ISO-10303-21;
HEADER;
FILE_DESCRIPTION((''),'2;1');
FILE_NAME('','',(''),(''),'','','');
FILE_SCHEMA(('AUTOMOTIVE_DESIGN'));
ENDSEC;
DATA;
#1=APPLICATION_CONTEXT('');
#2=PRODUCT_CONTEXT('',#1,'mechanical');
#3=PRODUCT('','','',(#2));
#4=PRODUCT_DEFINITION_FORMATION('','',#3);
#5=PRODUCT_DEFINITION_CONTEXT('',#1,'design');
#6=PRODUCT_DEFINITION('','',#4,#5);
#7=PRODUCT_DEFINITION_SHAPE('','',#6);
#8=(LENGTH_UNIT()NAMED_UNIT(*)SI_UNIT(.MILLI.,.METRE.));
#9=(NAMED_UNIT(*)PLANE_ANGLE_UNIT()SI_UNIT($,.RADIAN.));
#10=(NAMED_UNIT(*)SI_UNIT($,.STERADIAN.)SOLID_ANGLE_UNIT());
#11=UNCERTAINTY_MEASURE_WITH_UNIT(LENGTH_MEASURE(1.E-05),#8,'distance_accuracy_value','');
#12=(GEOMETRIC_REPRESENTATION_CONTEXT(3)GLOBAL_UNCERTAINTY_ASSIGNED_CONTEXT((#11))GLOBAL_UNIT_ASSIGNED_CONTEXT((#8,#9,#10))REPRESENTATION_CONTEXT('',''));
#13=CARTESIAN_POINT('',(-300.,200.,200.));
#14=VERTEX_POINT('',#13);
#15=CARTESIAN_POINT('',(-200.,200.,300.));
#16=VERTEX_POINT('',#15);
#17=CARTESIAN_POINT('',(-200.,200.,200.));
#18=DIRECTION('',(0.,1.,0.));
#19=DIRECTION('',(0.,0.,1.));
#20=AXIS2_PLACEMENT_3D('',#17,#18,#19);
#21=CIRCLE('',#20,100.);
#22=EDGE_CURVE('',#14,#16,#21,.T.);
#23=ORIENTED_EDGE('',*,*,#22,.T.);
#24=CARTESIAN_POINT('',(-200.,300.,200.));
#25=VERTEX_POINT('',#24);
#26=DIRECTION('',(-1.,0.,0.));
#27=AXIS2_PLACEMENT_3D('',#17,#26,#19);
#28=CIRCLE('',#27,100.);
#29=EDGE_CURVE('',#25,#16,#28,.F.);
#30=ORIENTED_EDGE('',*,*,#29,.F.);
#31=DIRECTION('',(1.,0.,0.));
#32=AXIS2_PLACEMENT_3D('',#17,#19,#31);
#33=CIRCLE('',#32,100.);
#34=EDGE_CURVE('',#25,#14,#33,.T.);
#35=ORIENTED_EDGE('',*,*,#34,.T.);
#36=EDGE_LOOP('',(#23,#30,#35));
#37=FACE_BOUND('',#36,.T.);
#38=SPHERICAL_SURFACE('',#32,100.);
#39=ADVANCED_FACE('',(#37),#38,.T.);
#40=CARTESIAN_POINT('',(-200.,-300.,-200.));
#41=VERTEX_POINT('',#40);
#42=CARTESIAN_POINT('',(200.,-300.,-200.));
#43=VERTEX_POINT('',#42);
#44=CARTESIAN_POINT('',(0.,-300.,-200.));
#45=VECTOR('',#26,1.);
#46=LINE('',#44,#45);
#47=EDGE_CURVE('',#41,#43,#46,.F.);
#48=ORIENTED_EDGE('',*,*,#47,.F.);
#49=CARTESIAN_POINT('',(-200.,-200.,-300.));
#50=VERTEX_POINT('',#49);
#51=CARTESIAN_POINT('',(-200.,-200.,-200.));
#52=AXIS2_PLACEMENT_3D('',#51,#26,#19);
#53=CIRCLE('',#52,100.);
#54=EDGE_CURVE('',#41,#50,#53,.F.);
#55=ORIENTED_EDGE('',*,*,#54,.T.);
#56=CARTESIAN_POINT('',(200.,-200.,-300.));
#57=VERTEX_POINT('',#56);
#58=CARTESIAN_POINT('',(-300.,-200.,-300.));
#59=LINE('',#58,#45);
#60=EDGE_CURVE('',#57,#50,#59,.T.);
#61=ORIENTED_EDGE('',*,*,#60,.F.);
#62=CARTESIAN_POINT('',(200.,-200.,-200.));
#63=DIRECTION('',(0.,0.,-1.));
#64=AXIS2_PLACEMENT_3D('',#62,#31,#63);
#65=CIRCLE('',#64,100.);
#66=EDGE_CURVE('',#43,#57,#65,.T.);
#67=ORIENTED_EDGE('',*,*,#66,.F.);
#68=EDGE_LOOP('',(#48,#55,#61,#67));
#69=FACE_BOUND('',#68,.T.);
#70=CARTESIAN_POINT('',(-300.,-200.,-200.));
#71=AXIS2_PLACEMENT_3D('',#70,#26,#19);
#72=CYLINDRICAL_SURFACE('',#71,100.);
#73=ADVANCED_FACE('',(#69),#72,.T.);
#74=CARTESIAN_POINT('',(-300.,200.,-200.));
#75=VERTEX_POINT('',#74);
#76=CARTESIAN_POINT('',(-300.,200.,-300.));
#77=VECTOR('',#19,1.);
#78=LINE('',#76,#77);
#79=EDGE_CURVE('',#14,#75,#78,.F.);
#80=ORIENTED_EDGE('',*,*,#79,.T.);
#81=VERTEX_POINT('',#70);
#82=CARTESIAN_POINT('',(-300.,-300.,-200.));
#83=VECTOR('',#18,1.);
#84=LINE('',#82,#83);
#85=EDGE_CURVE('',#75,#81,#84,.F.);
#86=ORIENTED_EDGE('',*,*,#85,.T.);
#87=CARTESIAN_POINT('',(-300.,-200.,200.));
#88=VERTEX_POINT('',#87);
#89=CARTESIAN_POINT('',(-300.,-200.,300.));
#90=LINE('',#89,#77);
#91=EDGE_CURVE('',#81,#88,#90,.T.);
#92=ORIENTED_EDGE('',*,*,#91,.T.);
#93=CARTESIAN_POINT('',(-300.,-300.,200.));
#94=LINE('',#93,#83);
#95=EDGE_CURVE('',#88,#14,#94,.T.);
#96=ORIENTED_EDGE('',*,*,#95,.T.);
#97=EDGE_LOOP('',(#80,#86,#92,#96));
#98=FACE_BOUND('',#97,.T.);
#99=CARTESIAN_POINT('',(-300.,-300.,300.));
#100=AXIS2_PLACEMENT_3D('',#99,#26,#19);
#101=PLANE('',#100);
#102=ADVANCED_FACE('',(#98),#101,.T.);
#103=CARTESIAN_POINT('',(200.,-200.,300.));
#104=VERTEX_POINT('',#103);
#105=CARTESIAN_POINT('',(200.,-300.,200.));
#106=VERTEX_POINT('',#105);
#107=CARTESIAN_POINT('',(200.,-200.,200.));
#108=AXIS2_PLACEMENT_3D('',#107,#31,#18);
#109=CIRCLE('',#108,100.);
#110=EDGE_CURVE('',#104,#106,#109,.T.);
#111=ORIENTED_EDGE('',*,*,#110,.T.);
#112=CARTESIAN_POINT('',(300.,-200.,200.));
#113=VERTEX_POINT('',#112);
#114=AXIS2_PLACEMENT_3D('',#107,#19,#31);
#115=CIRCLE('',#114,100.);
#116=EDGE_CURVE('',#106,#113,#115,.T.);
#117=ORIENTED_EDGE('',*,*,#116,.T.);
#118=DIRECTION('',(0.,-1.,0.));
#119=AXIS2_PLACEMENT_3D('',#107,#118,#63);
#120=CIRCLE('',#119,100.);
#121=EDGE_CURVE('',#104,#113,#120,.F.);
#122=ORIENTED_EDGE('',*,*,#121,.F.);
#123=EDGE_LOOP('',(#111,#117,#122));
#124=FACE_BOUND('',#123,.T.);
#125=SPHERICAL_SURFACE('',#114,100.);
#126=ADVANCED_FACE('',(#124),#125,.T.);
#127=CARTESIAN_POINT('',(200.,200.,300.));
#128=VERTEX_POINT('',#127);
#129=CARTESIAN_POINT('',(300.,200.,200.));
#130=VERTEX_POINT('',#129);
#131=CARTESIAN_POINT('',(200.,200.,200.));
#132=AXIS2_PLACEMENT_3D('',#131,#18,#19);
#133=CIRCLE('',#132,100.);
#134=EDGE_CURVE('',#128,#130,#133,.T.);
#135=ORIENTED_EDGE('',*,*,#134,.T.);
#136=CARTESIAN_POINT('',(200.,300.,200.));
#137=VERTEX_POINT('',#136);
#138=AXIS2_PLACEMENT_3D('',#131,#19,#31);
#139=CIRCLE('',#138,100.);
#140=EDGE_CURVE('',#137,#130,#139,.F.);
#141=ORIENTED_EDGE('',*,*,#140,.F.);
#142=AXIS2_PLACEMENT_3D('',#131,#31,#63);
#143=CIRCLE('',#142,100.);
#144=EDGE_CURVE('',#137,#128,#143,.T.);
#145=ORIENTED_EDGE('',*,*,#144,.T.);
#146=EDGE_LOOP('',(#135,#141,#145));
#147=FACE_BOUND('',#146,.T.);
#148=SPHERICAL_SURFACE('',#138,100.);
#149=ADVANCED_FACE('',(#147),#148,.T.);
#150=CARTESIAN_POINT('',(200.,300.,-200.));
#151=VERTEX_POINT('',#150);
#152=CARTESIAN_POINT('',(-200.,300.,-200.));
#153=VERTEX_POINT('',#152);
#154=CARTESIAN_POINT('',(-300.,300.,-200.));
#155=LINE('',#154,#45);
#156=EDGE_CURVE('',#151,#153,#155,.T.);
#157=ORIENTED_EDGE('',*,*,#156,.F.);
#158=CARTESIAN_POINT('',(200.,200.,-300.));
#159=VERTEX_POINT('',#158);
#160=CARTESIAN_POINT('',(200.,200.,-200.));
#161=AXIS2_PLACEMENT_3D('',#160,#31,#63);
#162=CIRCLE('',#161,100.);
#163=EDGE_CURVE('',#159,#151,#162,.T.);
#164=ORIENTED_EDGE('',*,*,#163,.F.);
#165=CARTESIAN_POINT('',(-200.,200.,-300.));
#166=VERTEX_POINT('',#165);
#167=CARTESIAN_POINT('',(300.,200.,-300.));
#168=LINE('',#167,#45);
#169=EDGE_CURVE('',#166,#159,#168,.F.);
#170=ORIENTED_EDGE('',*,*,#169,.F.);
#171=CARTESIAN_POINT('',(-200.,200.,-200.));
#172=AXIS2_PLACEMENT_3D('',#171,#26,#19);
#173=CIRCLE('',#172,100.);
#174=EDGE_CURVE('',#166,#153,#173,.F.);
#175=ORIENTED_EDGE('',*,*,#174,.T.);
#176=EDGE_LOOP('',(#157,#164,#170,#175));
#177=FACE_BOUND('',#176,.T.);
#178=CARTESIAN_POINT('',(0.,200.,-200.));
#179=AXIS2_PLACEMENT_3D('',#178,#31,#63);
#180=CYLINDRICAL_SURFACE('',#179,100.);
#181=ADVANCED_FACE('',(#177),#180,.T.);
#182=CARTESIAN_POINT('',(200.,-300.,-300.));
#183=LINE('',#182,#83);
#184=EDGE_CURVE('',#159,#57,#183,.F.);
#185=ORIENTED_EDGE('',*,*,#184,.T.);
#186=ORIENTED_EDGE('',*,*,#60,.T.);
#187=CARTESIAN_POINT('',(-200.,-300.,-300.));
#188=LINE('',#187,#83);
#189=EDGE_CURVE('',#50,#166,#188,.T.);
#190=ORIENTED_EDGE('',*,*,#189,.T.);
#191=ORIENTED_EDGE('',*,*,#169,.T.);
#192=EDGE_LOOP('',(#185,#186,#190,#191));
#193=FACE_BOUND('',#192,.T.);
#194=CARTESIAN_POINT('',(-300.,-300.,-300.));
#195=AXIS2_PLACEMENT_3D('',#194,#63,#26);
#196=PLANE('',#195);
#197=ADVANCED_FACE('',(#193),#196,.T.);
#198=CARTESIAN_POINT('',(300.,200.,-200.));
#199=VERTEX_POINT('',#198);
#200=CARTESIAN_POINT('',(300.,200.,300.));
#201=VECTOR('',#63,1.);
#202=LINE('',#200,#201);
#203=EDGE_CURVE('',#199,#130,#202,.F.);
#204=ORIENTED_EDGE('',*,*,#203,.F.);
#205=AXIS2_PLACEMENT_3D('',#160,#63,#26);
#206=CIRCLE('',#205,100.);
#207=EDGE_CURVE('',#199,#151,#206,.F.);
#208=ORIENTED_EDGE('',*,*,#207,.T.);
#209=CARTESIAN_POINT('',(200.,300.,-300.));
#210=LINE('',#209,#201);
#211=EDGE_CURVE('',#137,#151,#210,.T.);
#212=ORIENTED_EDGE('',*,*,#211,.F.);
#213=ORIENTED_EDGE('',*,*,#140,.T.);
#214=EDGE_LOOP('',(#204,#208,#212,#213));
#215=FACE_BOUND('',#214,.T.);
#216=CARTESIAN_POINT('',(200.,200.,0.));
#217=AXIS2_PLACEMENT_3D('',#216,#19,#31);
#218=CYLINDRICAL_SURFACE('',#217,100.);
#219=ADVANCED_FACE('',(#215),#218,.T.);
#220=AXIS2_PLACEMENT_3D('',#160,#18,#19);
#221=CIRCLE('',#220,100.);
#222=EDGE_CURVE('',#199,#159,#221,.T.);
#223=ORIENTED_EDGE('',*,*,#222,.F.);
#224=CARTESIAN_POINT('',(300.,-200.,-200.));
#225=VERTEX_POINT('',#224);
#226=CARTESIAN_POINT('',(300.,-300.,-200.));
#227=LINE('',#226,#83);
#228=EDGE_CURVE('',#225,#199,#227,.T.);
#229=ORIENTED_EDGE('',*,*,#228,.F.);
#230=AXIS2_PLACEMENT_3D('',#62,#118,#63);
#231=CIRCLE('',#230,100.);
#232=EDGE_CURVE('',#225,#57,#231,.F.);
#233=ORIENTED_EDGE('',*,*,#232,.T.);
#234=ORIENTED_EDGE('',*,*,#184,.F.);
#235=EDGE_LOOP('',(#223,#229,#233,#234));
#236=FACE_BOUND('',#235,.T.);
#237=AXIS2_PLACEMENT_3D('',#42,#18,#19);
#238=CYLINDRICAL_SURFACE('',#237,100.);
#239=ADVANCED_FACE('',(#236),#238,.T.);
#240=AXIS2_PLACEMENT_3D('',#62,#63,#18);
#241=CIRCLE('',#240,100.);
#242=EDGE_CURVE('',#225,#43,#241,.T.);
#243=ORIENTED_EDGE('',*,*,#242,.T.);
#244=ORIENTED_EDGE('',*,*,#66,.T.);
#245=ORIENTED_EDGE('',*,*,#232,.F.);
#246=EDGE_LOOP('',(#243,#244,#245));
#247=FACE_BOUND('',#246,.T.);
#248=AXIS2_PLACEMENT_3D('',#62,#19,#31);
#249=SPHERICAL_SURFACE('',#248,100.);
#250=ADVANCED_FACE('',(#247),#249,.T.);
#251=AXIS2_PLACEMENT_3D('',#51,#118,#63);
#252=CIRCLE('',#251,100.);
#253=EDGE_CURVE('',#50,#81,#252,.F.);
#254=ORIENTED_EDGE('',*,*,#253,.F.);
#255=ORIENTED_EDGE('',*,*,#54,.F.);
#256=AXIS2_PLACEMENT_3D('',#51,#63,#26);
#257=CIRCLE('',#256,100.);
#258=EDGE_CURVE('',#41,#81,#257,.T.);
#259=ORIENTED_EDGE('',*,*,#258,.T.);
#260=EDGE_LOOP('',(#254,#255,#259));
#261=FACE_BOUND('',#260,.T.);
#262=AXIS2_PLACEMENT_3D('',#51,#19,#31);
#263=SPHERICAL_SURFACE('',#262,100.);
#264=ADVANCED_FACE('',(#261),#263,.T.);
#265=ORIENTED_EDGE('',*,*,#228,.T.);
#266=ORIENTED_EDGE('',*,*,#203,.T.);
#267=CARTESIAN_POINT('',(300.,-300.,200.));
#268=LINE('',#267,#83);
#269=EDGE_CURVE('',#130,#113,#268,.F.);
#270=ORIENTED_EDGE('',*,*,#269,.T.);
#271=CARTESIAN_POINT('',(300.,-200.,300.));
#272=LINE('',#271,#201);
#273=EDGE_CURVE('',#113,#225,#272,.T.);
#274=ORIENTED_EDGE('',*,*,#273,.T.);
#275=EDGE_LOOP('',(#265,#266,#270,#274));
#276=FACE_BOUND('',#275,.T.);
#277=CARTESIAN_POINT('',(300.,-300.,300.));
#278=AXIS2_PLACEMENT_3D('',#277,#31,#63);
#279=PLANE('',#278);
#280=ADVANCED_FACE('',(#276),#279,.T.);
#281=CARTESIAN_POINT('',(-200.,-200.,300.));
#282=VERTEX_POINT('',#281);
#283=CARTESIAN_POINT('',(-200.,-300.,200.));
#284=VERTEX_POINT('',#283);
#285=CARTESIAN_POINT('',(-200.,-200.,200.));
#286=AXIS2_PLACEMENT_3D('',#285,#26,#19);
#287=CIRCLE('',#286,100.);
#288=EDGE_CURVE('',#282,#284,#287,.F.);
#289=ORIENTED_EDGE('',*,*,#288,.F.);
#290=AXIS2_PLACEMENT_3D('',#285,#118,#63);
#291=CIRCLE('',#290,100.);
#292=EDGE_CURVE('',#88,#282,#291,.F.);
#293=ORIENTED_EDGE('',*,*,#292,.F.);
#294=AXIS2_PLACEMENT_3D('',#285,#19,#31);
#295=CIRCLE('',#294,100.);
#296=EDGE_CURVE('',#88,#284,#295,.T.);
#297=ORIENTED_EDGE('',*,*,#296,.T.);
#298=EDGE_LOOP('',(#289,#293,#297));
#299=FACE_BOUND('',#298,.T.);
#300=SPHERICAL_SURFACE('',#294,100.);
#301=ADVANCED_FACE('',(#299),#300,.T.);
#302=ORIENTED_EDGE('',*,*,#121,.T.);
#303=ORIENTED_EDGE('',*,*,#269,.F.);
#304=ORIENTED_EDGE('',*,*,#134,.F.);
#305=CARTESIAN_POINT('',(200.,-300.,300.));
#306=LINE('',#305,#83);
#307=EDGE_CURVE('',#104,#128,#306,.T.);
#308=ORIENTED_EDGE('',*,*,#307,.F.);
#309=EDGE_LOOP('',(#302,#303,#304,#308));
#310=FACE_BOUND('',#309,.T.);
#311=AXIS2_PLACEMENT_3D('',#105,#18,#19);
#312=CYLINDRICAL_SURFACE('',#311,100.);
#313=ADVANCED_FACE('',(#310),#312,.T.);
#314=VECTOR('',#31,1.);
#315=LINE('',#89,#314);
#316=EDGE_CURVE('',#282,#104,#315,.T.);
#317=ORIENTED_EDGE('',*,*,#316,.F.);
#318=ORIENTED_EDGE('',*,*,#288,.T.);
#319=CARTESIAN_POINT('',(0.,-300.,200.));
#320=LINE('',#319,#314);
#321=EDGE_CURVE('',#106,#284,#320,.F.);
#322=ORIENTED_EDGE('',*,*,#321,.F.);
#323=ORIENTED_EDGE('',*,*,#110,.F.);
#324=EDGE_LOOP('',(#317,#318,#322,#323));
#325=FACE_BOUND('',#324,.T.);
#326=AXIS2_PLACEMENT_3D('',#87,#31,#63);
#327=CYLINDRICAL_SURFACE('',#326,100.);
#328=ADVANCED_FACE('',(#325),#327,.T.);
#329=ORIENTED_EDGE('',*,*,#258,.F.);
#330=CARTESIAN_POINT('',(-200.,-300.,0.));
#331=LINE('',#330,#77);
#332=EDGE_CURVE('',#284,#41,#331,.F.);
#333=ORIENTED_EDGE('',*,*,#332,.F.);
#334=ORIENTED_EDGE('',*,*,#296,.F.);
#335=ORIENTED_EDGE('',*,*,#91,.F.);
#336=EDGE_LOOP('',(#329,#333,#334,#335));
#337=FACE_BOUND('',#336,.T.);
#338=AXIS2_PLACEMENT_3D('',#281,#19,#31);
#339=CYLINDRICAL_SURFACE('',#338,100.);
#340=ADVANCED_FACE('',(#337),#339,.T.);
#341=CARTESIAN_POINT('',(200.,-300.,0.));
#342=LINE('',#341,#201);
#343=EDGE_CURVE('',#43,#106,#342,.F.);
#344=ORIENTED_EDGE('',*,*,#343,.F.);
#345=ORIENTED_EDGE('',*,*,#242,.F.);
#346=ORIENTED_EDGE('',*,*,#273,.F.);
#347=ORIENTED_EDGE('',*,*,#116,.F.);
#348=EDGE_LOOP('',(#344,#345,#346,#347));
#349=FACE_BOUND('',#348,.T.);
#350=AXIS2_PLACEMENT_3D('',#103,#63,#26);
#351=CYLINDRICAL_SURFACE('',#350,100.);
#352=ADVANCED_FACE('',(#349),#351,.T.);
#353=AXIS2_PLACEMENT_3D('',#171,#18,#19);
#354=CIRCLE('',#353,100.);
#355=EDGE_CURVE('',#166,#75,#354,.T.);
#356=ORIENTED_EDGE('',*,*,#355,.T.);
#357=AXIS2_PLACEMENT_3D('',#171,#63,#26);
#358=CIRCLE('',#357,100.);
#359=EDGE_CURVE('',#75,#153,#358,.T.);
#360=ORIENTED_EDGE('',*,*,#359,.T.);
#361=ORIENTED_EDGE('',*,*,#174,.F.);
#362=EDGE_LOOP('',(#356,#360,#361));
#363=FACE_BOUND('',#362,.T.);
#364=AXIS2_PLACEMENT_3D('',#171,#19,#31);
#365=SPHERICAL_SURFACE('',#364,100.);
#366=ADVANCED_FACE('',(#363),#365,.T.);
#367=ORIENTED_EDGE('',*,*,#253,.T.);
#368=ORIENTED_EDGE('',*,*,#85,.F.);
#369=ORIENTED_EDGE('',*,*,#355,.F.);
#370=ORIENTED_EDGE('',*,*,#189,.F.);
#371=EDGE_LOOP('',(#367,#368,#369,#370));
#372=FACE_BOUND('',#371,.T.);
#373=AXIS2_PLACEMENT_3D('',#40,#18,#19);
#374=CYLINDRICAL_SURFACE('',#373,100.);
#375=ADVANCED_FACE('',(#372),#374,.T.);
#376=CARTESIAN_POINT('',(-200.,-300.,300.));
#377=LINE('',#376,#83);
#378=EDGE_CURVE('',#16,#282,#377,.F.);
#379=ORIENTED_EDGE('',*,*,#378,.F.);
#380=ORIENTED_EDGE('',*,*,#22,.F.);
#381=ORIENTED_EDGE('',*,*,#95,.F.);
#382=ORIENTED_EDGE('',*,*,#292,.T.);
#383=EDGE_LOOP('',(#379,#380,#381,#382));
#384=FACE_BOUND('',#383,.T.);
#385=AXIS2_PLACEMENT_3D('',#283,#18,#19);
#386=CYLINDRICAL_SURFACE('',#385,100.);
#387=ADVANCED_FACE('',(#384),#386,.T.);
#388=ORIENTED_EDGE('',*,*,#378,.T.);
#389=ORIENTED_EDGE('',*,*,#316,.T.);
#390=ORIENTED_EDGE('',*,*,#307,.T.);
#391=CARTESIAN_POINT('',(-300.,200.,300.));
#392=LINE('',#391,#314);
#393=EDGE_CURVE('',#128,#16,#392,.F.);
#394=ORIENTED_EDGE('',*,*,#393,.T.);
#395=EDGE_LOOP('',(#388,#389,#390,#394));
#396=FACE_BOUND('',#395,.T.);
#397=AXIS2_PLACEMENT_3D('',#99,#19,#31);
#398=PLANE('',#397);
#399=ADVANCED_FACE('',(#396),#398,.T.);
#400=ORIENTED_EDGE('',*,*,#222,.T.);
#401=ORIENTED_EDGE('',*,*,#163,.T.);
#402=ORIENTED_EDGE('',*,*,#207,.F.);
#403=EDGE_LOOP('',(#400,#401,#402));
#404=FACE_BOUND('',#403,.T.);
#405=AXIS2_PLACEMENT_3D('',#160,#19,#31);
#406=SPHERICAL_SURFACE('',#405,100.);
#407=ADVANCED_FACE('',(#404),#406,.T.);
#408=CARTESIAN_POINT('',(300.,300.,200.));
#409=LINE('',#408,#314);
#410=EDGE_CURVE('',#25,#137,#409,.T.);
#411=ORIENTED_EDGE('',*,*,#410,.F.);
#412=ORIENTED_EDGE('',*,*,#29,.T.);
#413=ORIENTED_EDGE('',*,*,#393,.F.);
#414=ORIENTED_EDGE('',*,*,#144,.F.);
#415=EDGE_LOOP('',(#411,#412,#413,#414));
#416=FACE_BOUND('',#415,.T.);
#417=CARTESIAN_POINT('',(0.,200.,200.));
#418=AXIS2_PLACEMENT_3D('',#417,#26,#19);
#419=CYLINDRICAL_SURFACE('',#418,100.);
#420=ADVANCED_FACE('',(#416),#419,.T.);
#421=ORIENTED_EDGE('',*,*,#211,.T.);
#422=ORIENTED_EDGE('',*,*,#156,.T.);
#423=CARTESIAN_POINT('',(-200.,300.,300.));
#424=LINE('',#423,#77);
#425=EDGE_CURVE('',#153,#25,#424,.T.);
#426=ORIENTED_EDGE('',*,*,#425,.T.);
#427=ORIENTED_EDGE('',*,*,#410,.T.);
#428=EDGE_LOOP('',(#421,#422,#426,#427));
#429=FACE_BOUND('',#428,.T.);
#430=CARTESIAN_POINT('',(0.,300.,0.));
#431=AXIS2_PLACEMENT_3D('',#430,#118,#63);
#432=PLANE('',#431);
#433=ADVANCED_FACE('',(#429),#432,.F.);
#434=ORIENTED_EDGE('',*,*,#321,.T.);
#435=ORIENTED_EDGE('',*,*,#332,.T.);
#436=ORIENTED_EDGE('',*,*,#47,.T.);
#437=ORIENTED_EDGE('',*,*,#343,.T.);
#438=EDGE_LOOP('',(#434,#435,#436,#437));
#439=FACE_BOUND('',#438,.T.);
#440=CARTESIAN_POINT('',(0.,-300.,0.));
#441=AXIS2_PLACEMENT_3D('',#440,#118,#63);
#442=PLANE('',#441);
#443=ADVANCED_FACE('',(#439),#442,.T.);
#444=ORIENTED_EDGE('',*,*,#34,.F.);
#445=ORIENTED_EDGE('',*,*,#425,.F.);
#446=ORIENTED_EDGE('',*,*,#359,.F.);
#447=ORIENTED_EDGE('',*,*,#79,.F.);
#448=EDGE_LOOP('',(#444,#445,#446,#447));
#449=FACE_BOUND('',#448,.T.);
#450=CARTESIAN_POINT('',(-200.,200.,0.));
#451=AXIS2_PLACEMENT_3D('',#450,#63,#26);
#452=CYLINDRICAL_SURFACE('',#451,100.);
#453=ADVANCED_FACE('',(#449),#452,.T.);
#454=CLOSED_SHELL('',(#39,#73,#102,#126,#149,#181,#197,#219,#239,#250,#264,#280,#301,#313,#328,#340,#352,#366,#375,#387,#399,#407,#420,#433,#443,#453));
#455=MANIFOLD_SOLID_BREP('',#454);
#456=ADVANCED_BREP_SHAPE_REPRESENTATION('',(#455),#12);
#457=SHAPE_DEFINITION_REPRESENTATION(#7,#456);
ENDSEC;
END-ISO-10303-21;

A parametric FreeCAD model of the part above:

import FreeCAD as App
import Part
import Sketcher

doc = App.newDocument("Part")
body = doc.addObject("PartDesign::Body", "Body")

# Sketch on XZ plane
sketch1 = body.newObject("Sketcher::SketchObject", "Sketch")
sketch1.AttachmentSupport = (doc.getObject("XZ_Plane"), [""])
sketch1.MapMode = "FlatFace"
sketch1.addGeometry([
    Part.LineSegment(App.Vector(-300, -300, 0), App.Vector(-300, 300, 0)),
    Part.LineSegment(App.Vector(-300, 300, 0), App.Vector(300, 300, 0)),
    Part.LineSegment(App.Vector(300, 300, 0), App.Vector(300, -300, 0)),
    Part.LineSegment(App.Vector(300, -300, 0), App.Vector(-300, -300, 0)),
], False)
sketch1.addConstraint([
    Sketcher.Constraint("Coincident", 0, 2, 1, 1),
    Sketcher.Constraint("Coincident", 1, 2, 2, 1),
    Sketcher.Constraint("Coincident", 2, 2, 3, 1),
    Sketcher.Constraint("Coincident", 3, 2, 0, 1),
    Sketcher.Constraint("Vertical", 0),
    Sketcher.Constraint("Horizontal", 1),
    Sketcher.Constraint("Vertical", 2),
    Sketcher.Constraint("Horizontal", 3),
    Sketcher.Constraint("Symmetric", 0, 2, 2, 2, -1, 1),
    Sketcher.Constraint("Equal", 3, 0),
    Sketcher.Constraint("DistanceX", 1, 1, 1, 2, 600.0),
])
pad1 = body.newObject("PartDesign::Pad", "Pad")
pad1.Profile = sketch1
pad1.Type = "TwoLengths"
pad1.Length = 300
pad1.Length2 = 300
pad1.Reversed = True
doc.recompute()

fillet = body.newObject("PartDesign::Fillet", "Fillet")
fillet.Base = (pad1, ["Edge1"])
fillet.UseAllEdges = True
fillet.Radius = 100

doc.recompute()
